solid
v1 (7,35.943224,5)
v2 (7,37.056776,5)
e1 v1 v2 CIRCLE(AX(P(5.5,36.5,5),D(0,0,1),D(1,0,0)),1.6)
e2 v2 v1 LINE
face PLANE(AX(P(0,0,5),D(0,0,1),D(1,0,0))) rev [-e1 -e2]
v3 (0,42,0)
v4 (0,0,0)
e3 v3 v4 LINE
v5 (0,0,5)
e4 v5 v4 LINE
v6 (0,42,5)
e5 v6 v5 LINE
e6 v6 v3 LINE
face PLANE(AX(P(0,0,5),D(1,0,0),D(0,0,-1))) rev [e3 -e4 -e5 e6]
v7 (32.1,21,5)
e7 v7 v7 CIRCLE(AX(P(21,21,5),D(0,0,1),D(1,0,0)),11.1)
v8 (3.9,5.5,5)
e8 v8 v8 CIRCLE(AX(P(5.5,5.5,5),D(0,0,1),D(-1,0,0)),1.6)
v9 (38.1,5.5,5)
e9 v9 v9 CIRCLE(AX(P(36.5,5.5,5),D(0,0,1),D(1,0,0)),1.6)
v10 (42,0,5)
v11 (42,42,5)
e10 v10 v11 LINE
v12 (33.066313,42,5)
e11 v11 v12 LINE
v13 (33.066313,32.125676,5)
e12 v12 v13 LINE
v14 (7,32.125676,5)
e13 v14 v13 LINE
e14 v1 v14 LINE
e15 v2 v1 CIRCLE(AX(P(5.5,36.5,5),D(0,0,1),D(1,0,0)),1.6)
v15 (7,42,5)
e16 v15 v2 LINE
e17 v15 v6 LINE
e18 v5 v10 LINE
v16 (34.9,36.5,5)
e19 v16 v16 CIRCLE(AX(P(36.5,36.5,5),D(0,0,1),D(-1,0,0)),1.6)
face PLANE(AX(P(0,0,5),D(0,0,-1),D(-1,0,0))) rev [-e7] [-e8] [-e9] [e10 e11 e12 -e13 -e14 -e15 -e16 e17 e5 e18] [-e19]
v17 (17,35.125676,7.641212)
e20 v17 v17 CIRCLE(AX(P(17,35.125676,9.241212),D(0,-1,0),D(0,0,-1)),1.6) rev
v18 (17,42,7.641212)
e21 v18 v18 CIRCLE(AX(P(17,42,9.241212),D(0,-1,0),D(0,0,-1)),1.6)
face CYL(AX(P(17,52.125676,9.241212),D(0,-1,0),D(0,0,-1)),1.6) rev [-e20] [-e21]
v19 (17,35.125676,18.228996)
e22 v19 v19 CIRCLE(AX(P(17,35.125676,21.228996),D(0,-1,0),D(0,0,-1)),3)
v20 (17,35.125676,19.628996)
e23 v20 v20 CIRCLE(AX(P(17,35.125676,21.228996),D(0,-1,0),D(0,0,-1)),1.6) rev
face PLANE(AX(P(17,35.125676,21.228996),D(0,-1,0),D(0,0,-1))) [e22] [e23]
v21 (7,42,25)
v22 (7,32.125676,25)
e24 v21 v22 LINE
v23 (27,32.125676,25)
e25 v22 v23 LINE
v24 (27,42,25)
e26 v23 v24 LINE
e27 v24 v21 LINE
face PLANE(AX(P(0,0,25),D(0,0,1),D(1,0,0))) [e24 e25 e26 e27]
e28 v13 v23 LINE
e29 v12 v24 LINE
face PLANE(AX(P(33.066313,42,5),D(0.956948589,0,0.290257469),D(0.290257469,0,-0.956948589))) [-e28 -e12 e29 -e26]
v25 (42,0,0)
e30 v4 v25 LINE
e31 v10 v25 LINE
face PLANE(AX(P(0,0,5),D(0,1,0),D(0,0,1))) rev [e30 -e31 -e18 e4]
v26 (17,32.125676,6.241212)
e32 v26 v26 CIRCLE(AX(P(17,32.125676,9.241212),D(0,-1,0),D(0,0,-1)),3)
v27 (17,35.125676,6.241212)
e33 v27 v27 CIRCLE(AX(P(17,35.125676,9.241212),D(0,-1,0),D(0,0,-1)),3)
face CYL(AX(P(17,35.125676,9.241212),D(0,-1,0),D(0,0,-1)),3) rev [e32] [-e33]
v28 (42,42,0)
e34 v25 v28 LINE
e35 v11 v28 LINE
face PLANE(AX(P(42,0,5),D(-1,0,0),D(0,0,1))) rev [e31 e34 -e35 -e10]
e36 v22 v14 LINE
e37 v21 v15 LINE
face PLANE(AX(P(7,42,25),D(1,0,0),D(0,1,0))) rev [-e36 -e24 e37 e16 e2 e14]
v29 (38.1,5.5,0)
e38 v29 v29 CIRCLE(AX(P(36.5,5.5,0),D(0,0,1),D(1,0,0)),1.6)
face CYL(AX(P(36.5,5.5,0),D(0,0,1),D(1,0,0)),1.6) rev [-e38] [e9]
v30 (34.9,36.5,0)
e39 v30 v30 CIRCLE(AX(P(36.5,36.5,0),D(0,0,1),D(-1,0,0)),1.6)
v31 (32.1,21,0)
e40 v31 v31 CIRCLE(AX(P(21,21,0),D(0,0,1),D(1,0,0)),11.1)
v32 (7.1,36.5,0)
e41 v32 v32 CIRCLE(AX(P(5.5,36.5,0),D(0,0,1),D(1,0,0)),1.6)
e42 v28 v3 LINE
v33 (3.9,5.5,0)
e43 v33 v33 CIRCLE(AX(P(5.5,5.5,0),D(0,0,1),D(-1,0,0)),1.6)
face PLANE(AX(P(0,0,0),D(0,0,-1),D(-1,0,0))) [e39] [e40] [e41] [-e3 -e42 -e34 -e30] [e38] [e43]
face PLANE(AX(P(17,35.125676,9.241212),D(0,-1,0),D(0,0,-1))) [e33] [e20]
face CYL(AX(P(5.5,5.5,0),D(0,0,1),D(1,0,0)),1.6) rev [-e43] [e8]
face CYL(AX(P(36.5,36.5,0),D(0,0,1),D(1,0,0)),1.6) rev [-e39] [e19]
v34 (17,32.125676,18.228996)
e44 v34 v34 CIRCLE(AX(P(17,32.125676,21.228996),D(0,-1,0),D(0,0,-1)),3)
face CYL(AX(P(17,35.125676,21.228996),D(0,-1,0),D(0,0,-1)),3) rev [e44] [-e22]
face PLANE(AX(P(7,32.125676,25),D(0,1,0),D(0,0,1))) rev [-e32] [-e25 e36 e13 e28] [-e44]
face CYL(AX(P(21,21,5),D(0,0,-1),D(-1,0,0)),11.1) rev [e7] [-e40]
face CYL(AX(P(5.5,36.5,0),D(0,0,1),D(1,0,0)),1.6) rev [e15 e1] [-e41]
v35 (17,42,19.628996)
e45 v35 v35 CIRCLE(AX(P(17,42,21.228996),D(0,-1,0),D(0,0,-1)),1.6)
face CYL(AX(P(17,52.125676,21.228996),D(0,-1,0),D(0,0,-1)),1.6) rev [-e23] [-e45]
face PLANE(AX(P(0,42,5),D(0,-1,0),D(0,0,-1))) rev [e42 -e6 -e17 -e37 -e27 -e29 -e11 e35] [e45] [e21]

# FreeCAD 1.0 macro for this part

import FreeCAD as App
import Part
import Sketcher

V = App.Vector

doc = App.newDocument("Part")
body = doc.addObject("PartDesign::Body", "Body")

sketch1 = body.newObject("Sketcher::SketchObject", "Sketch")
sketch1.AttachmentSupport = (doc.getObject("XY_Plane"), [""])
sketch1.MapMode = "FlatFace"
sketch1.addGeometry(Part.LineSegment(V(0, 42, 0), V(0, 0, 0)), False)
sketch1.addGeometry(Part.LineSegment(V(0, 0, 0), V(42, 0, 0)), False)
sketch1.addGeometry(Part.LineSegment(V(42, 0, 0), V(42, 42, 0)), False)
sketch1.addGeometry(Part.LineSegment(V(42, 42, 0), V(0, 42, 0)), False)
sketch1.addGeometry(Part.Circle(V(21, 21, 0), V(0, 0, 1), 11.1), False)
sketch1.addConstraint(Sketcher.Constraint("Coincident", 0, 2, 1, 1))
sketch1.addConstraint(Sketcher.Constraint("Coincident", 1, 2, 2, 1))
sketch1.addConstraint(Sketcher.Constraint("Coincident", 2, 2, 3, 1))
sketch1.addConstraint(Sketcher.Constraint("Coincident", 3, 2, 0, 1))
sketch1.addConstraint(Sketcher.Constraint("Vertical", 0))
sketch1.addConstraint(Sketcher.Constraint("Horizontal", 1))
sketch1.addConstraint(Sketcher.Constraint("Vertical", 2))
sketch1.addConstraint(Sketcher.Constraint("Horizontal", 3))
sketch1.addConstraint(Sketcher.Constraint("Coincident", 0, 2, -1, 1))
sketch1.addConstraint(Sketcher.Constraint("Equal", 3, 0))
sketch1.addConstraint(Sketcher.Constraint("Diameter", 4, 22.2))
sketch1.addConstraint(Sketcher.Constraint("DistanceX", 1, 1, 1, 2, 42.0))
sketch1.addConstraint(Sketcher.Constraint("DistanceX", -1, 1, 4, 3, 21.0))
sketch1.addConstraint(Sketcher.Constraint("DistanceY", -1, 1, 4, 3, 21.0))
pad1 = body.newObject("PartDesign::Pad", "Pad")
pad1.Profile = sketch1
pad1.Length = 5

sketch2 = body.newObject("Sketcher::SketchObject", "Sketch001")
sketch2.AttachmentSupport = (doc.getObject("XY_Plane"), [""])
sketch2.MapMode = "FlatFace"
sketch2.AttachmentOffset = App.Placement(V(0, 0, 5), App.Rotation())
sketch2.addGeometry(Part.Circle(V(36.5, 36.5, 0), V(0, 0, 1), 1.6), False)
sketch2.addGeometry(Part.Circle(V(5.5, 36.5, 0), V(0, 0, 1), 1.6), False)
sketch2.addGeometry(Part.Circle(V(36.5, 5.5, 0), V(0, 0, 1), 1.6), False)
sketch2.addGeometry(Part.Circle(V(5.5, 5.5, 0), V(0, 0, 1), 1.6), False)
sketch2.addConstraint(Sketcher.Constraint("Equal", 0, 1))
sketch2.addConstraint(Sketcher.Constraint("Equal", 1, 2))
sketch2.addConstraint(Sketcher.Constraint("Equal", 2, 3))
sketch2.addConstraint(Sketcher.Constraint("Horizontal", 0, 3, 1, 3))
sketch2.addConstraint(Sketcher.Constraint("Horizontal", 2, 3, 3, 3))
sketch2.addConstraint(Sketcher.Constraint("Vertical", 0, 3, 2, 3))
sketch2.addConstraint(Sketcher.Constraint("Vertical", 1, 3, 3, 3))
sketch2.addConstraint(Sketcher.Constraint("Diameter", 0, 3.2))
sketch2.addConstraint(Sketcher.Constraint("DistanceX", 1, 3, 0, 3, 31.0))
sketch2.addConstraint(Sketcher.Constraint("DistanceY", 2, 3, 0, 3, 31.0))
sketch2.addConstraint(Sketcher.Constraint("DistanceX", -1, 1, 0, 3, 36.5))
sketch2.addConstraint(Sketcher.Constraint("DistanceY", -1, 1, 0, 3, 36.5))
pocket1 = body.newObject("PartDesign::Pocket", "Pocket")
pocket1.Profile = sketch2
pocket1.Type = "ThroughAll"

sketch3 = body.newObject("Sketcher::SketchObject", "Sketch002")
sketch3.AttachmentSupport = (doc.getObject("XY_Plane"), [""])
sketch3.MapMode = "FlatFace"
sketch3.AttachmentOffset = App.Placement(V(0, 0, 5), App.Rotation())
sketch3.addGeometry(Part.LineSegment(V(7, 42, 0), V(7, 32.125676, 0)), False)
sketch3.addGeometry(Part.LineSegment(V(7, 32.125676, 0), V(27, 32.125676, 0)), False)
sketch3.addGeometry(Part.LineSegment(V(27, 32.125676, 0), V(27, 42, 0)), False)
sketch3.addGeometry(Part.LineSegment(V(27, 42, 0), V(7, 42, 0)), False)
sketch3.addConstraint(Sketcher.Constraint("Coincident", 0, 2, 1, 1))
sketch3.addConstraint(Sketcher.Constraint("Coincident", 1, 2, 2, 1))
sketch3.addConstraint(Sketcher.Constraint("Coincident", 2, 2, 3, 1))
sketch3.addConstraint(Sketcher.Constraint("Coincident", 3, 2, 0, 1))
sketch3.addConstraint(Sketcher.Constraint("Vertical", 0))
sketch3.addConstraint(Sketcher.Constraint("Horizontal", 1))
sketch3.addConstraint(Sketcher.Constraint("Vertical", 2))
sketch3.addConstraint(Sketcher.Constraint("Horizontal", 3))
sketch3.addConstraint(Sketcher.Constraint("DistanceX", 1, 1, 1, 2, 20.0))
sketch3.addConstraint(Sketcher.Constraint("DistanceX", -1, 1, 0, 2, 7.0))
sketch3.addConstraint(Sketcher.Constraint("DistanceY", -1, 1, 2, 2, 42.0))
sketch3.addConstraint(Sketcher.Constraint("DistanceY", 0, 2, 0, 1, 9.874324))
pad2 = body.newObject("PartDesign::Pad", "Pad001")
pad2.Profile = sketch3
pad2.Length = 20

sketch4 = body.newObject("Sketcher::SketchObject", "Sketch003")
sketch4.AttachmentSupport = (doc.getObject("XZ_Plane"), [""])
sketch4.MapMode = "FlatFace"
sketch4.AttachmentOffset = App.Placement(V(0, 0, -32.125676), App.Rotation())
sketch4.addGeometry(Part.Circle(V(17, 21.228996, 0), V(0, 0, 1), 1.6), False)
sketch4.addGeometry(Part.Circle(V(17, 9.241212, 0), V(0, 0, 1), 1.6), False)
sketch4.addConstraint(Sketcher.Constraint("Equal", 0, 1))
sketch4.addConstraint(Sketcher.Constraint("Vertical", 0, 3, 1, 3))
sketch4.addConstraint(Sketcher.Constraint("Diameter", 0, 3.2))
sketch4.addConstraint(Sketcher.Constraint("DistanceX", -1, 1, 0, 3, 17.0))
sketch4.addConstraint(Sketcher.Constraint("DistanceY", -1, 1, 1, 3, 9.241212))
sketch4.addConstraint(Sketcher.Constraint("DistanceY", -1, 1, 0, 3, 21.228996))
pocket2 = body.newObject("PartDesign::Pocket", "Pocket001")
pocket2.Profile = sketch4
pocket2.Length = 20

sketch5 = body.newObject("Sketcher::SketchObject", "Sketch004")
sketch5.AttachmentSupport = (doc.getObject("XZ_Plane"), [""])
sketch5.MapMode = "FlatFace"
sketch5.AttachmentOffset = App.Placement(V(0, 0, -32.125676), App.Rotation())
sketch5.addGeometry(Part.Circle(V(17, 21.228996, 0), V(0, 0, 1), 3), False)
sketch5.addGeometry(Part.Circle(V(17, 9.241212, 0), V(0, 0, 1), 3), False)
sketch5.addConstraint(Sketcher.Constraint("Equal", 0, 1))
sketch5.addConstraint(Sketcher.Constraint("Vertical", 0, 3, 1, 3))
sketch5.addConstraint(Sketcher.Constraint("Diameter", 0, 6.0))
sketch5.addConstraint(Sketcher.Constraint("DistanceX", -1, 1, 0, 3, 17.0))
sketch5.addConstraint(Sketcher.Constraint("DistanceY", -1, 1, 1, 3, 9.241212))
sketch5.addConstraint(Sketcher.Constraint("DistanceY", -1, 1, 0, 3, 21.228996))
pocket3 = body.newObject("PartDesign::Pocket", "Pocket002")
pocket3.Profile = sketch5
pocket3.Length = 3

sketch6 = body.newObject("Sketcher::SketchObject", "Sketch005")
sketch6.AttachmentSupport = (doc.getObject("XZ_Plane"), [""])
sketch6.MapMode = "FlatFace"
sketch6.AttachmentOffset = App.Placement(V(0, 0, -32.125676), App.Rotation())
sketch6.addGeometry(Part.LineSegment(V(27, 5, 0), V(33.066313, 5, 0)), False)
sketch6.addGeometry(Part.LineSegment(V(33.066313, 5, 0), V(27, 25, 0)), False)
sketch6.addGeometry(Part.LineSegment(V(27, 25, 0), V(27, 5, 0)), False)
sketch6.addConstraint(Sketcher.Constraint("Coincident", 0, 2, 1, 1))
sketch6.addConstraint(Sketcher.Constraint("Coincident", 1, 2, 2, 1))
sketch6.addConstraint(Sketcher.Constraint("Coincident", 2, 2, 0, 1))
sketch6.addConstraint(Sketcher.Constraint("Horizontal", 0))
sketch6.addConstraint(Sketcher.Constraint("Vertical", 2))
sketch6.addConstraint(Sketcher.Constraint("DistanceY", 2, 2, 2, 1, 20.0))
sketch6.addConstraint(Sketcher.Constraint("DistanceY", -1, 1, 0, 2, 5.0))
sketch6.addConstraint(Sketcher.Constraint("DistanceX", -1, 1, 1, 2, 27.0))
sketch6.addConstraint(Sketcher.Constraint("DistanceX", 0, 1, 0, 2, 6.066313))
pad3 = body.newObject("PartDesign::Pad", "Pad002")
pad3.Profile = sketch6
pad3.Length = 9.874324
pad3.Reversed = True

doc.recompute()
